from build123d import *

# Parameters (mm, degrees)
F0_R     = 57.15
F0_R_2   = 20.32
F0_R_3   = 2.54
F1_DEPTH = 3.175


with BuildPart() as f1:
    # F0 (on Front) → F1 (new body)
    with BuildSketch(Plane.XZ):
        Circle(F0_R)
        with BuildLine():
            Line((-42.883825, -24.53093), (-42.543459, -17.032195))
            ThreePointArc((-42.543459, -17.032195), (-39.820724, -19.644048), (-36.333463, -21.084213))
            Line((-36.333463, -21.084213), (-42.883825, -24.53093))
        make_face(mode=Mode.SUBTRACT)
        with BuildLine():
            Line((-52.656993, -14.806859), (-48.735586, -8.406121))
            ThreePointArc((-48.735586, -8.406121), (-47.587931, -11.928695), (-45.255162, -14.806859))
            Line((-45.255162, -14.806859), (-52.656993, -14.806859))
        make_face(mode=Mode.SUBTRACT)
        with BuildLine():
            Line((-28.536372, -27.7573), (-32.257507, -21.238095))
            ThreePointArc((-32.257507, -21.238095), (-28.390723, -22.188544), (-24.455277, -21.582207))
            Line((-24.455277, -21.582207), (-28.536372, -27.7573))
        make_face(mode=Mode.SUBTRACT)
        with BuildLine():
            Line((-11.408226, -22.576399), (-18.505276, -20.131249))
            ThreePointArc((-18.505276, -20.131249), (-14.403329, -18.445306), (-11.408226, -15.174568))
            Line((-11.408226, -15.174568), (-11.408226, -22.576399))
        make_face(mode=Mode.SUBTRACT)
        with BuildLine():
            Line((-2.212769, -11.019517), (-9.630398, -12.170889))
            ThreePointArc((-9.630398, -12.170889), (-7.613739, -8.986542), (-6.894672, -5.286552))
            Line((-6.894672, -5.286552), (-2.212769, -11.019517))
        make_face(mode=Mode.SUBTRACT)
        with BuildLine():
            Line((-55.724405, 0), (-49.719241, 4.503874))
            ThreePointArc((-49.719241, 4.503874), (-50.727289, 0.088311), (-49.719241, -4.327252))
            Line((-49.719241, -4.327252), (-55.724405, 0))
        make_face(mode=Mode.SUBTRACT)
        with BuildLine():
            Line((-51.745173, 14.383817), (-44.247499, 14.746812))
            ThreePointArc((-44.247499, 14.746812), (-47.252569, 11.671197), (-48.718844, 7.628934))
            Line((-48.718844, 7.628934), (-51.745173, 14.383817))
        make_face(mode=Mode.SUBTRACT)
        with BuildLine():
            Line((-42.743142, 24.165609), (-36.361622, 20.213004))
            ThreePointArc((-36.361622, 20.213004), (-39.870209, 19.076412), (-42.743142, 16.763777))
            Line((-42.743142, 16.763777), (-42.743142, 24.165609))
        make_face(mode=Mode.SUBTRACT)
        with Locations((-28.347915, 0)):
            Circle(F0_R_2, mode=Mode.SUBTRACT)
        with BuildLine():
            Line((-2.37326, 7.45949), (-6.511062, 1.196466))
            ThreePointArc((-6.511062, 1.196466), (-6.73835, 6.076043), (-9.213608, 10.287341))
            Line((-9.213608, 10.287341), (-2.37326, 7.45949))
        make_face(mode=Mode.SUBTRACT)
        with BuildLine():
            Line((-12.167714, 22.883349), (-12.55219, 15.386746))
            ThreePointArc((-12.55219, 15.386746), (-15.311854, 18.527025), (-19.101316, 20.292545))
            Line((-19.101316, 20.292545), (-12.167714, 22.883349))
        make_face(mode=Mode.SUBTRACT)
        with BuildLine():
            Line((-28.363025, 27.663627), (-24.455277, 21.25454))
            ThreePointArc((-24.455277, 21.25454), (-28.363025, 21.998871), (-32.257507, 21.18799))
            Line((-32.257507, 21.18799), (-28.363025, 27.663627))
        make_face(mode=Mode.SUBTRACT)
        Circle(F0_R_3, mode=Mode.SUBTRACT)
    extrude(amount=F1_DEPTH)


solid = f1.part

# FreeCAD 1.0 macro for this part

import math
import FreeCAD as App
import Part
import Sketcher
from FreeCAD import Vector
Q = App.Units.Quantity

doc = App.newDocument("Part")
body = doc.addObject("PartDesign::Body", "Body")

sketch1 = body.newObject("Sketcher::SketchObject", "Sketch")
sketch1.AttachmentSupport = (doc.getObject("XZ_Plane"), [""])
sketch1.MapMode = "FlatFace"
sketch1.addGeometry(Part.Circle(Vector(0, 0, 0), Vector(0, 0, 1), 57.15), False)
sketch1.addGeometry(Part.LineSegment(Vector(-24.455277, -21.582207, 0), Vector(-28.536372, -27.7573, 0)), False)
sketch1.addGeometry(Part.LineSegment(Vector(-28.536372, -27.7573, 0), Vector(-32.257507, -21.238095, 0)), False)
sketch1.addGeometry(Part.ArcOfCircle(Part.Circle(Vector(-27.942406, -12.023632, 0), Vector(0, 0, 1), 10.174794), math.radians(-115.093528), math.radians(-69.957181)), False)
sketch1.addGeometry(Part.LineSegment(Vector(-36.333463, -21.084213, 0), Vector(-42.883825, -24.53093, 0)), False)
sketch1.addGeometry(Part.LineSegment(Vector(-42.883825, -24.53093, 0), Vector(-42.543459, -17.032195, 0)), False)
sketch1.addGeometry(Part.ArcOfCircle(Part.Circle(Vector(-34.260627, -11.122817, 0), Vector(0, 0, 1), 10.174776), math.radians(-144.494081), math.radians(-101.754758)), False)
sketch1.addGeometry(Part.LineSegment(Vector(-45.255162, -14.806859, 0), Vector(-52.656993, -14.806859, 0)), False)
sketch1.addGeometry(Part.LineSegment(Vector(-52.656993, -14.806859, 0), Vector(-48.735586, -8.406121, 0)), False)
sketch1.addGeometry(Part.ArcOfCircle(Part.Circle(Vector(-38.649141, -7.068196, 0), Vector(0, 0, 1), 10.174793), math.radians(-172.444063), math.radians(-130.48535)), False)
sketch1.addGeometry(Part.LineSegment(Vector(-11.408226, -15.174568, 0), Vector(-11.408226, -22.576399, 0)), False)
sketch1.addGeometry(Part.LineSegment(Vector(-11.408226, -22.576399, 0), Vector(-18.505276, -20.131249, 0)), False)
sketch1.addGeometry(Part.ArcOfCircle(Part.Circle(Vector(-20.229308, -10.103583, 0), Vector(0, 0, 1), 10.174791), math.radians(-80.244652), math.radians(-29.893352)), False)
sketch1.addGeometry(Part.LineSegment(Vector(-6.894672, -5.286552, 0), Vector(-2.212769, -11.019517, 0)), False)
sketch1.addGeometry(Part.LineSegment(Vector(-2.212769, -11.019517, 0), Vector(-9.630398, -12.170889, 0)), False)
sketch1.addGeometry(Part.ArcOfCircle(Part.Circle(Vector(-17.069298, -5.229053, 0), Vector(0, 0, 1), 10.174789), math.radians(-43.020383), math.radians(-0.323788)), False)
sketch1.addGeometry(Part.LineSegment(Vector(-49.719241, -4.327252, 0), Vector(-55.724405, 0, 0)), False)
sketch1.addGeometry(Part.LineSegment(Vector(-55.724405, 0, 0), Vector(-49.719241, 4.503874, 0)), False)
sketch1.addGeometry(Part.ArcOfCircle(Part.Circle(Vector(-40.552497, 0.088311, 0), Vector(0, 0, 1), 10.174792), math.radians(154.280175), math.radians(205.719825)), False)
sketch1.addGeometry(Part.LineSegment(Vector(-48.718844, 7.628934, 0), Vector(-51.745173, 14.383817, 0)), False)
sketch1.addGeometry(Part.LineSegment(Vector(-51.745173, 14.383817, 0), Vector(-44.247499, 14.746812, 0)), False)
sketch1.addGeometry(Part.ArcOfCircle(Part.Circle(Vector(-38.636724, 6.258851, 0), Vector(0, 0, 1), 10.174786), math.radians(123.4658), math.radians(172.261347)), False)
sketch1.addGeometry(Part.Circle(Vector(-28.347915, 0, 0), Vector(0, 0, 1), 20.32), False)
sketch1.addGeometry(Part.LineSegment(Vector(-42.743142, 16.763777, 0), Vector(-42.743142, 24.165609, 0)), False)
sketch1.addGeometry(Part.LineSegment(Vector(-42.743142, 24.165609, 0), Vector(-36.361622, 20.213004, 0)), False)
sketch1.addGeometry(Part.ArcOfCircle(Part.Circle(Vector(-35.032191, 10.125448, 0), Vector(0, 0, 1), 10.174782), math.radians(97.507698), math.radians(139.27496)), False)
sketch1.addGeometry(Part.LineSegment(Vector(-32.257507, 21.18799, 0), Vector(-28.363025, 27.663627, 0)), False)
sketch1.addGeometry(Part.LineSegment(Vector(-28.363025, 27.663627, 0), Vector(-24.455277, 21.25454, 0)), False)
sketch1.addGeometry(Part.ArcOfCircle(Part.Circle(Vector(-28.276241, 11.824458, 0), Vector(0, 0, 1), 10.174783), math.radians(67.942759), math.radians(113.034639)), False)
sketch1.addGeometry(Part.LineSegment(Vector(-9.213608, 10.287341, 0), Vector(-2.37326, 7.45949, 0)), False)
sketch1.addGeometry(Part.LineSegment(Vector(-2.37326, 7.45949, 0), Vector(-6.511062, 1.196466, 0)), False)
sketch1.addGeometry(Part.ArcOfCircle(Part.Circle(Vector(-16.491303, 3.176674, 0), Vector(0, 0, 1), 10.174794), math.radians(-11.222466), math.radians(44.334911)), False)
sketch1.addGeometry(Part.Circle(Vector(0, 0, 0), Vector(0, 0, 1), 2.54), False)
sketch1.addGeometry(Part.LineSegment(Vector(-19.101316, 20.292545, 0), Vector(-12.167714, 22.883349, 0)), False)
sketch1.addGeometry(Part.LineSegment(Vector(-12.167714, 22.883349, 0), Vector(-12.55219, 15.386746, 0)), False)
sketch1.addGeometry(Part.ArcOfCircle(Part.Circle(Vector(-21.411913, 10.383589, 0), Vector(0, 0, 1), 10.174786), math.radians(29.453769), math.radians(76.874165)), False)
sketch1.addConstraint(Sketcher.Constraint("Coincident", 1, 2, 2, 1))
sketch1.addConstraint(Sketcher.Constraint("Coincident", 2, 2, 3, 1))
sketch1.addConstraint(Sketcher.Constraint("Coincident", 3, 2, 1, 1))
sketch1.addConstraint(Sketcher.Constraint("Coincident", 4, 2, 5, 1))
sketch1.addConstraint(Sketcher.Constraint("Coincident", 5, 2, 6, 1))
sketch1.addConstraint(Sketcher.Constraint("Coincident", 6, 2, 4, 1))
sketch1.addConstraint(Sketcher.Constraint("Coincident", 7, 2, 8, 1))
sketch1.addConstraint(Sketcher.Constraint("Coincident", 8, 2, 9, 1))
sketch1.addConstraint(Sketcher.Constraint("Coincident", 9, 2, 7, 1))
sketch1.addConstraint(Sketcher.Constraint("Coincident", 10, 2, 11, 1))
sketch1.addConstraint(Sketcher.Constraint("Coincident", 11, 2, 12, 1))
sketch1.addConstraint(Sketcher.Constraint("Coincident", 12, 2, 10, 1))
sketch1.addConstraint(Sketcher.Constraint("Coincident", 13, 2, 14, 1))
sketch1.addConstraint(Sketcher.Constraint("Coincident", 14, 2, 15, 1))
sketch1.addConstraint(Sketcher.Constraint("Coincident", 15, 2, 13, 1))
sketch1.addConstraint(Sketcher.Constraint("Coincident", 16, 2, 17, 1))
sketch1.addConstraint(Sketcher.Constraint("Coincident", 17, 2, 18, 1))
sketch1.addConstraint(Sketcher.Constraint("Coincident", 18, 2, 16, 1))
sketch1.addConstraint(Sketcher.Constraint("Coincident", 19, 2, 20, 1))
sketch1.addConstraint(Sketcher.Constraint("Coincident", 20, 2, 21, 1))
sketch1.addConstraint(Sketcher.Constraint("Coincident", 21, 2, 19, 1))
sketch1.addConstraint(Sketcher.Constraint("Coincident", 23, 2, 24, 1))
sketch1.addConstraint(Sketcher.Constraint("Coincident", 24, 2, 25, 1))
sketch1.addConstraint(Sketcher.Constraint("Coincident", 25, 2, 23, 1))
sketch1.addConstraint(Sketcher.Constraint("Coincident", 26, 2, 27, 1))
sketch1.addConstraint(Sketcher.Constraint("Coincident", 27, 2, 28, 1))
sketch1.addConstraint(Sketcher.Constraint("Coincident", 28, 2, 26, 1))
sketch1.addConstraint(Sketcher.Constraint("Coincident", 29, 2, 30, 1))
sketch1.addConstraint(Sketcher.Constraint("Coincident", 30, 2, 31, 1))
sketch1.addConstraint(Sketcher.Constraint("Coincident", 31, 2, 29, 1))
sketch1.addConstraint(Sketcher.Constraint("Coincident", 33, 2, 34, 1))
sketch1.addConstraint(Sketcher.Constraint("Coincident", 34, 2, 35, 1))
sketch1.addConstraint(Sketcher.Constraint("Coincident", 35, 2, 33, 1))
sketch1.addConstraint(Sketcher.Constraint("Horizontal", 7))
sketch1.addConstraint(Sketcher.Constraint("Vertical", 10))
sketch1.addConstraint(Sketcher.Constraint("Vertical", 23))
sketch1.addConstraint(Sketcher.Constraint("Coincident", 0, 3, -1, 1))
sketch1.addConstraint(Sketcher.Constraint("Coincident", 32, 3, -1, 1))
sketch1.addConstraint(Sketcher.Constraint("PointOnObject", 22, 3, -1))
sketch1.addConstraint(Sketcher.Constraint("PointOnObject", 16, 2, -1))
sketch1.addConstraint(Sketcher.Constraint("Diameter", 0, Q("4.5 in")))
sketch1.addConstraint(Sketcher.Constraint("Diameter", 22, Q("1.6 in")))
sketch1.addConstraint(Sketcher.Constraint("Diameter", 32, Q("0.2 in")))
sketch1.addConstraint(Sketcher.Constraint("Radius", 12, 10.174791))
sketch1.addConstraint(Sketcher.Constraint("Radius", 15, 10.174789))
sketch1.addConstraint(Sketcher.Constraint("Radius", 18, 10.174792))
sketch1.addConstraint(Sketcher.Constraint("Radius", 25, 10.174782))
sketch1.addConstraint(Sketcher.Constraint("DistanceY", 35, 2, 33, 2, Q("0.1020002 in")))
sketch1.addConstraint(Sketcher.Constraint("Radius", 3, 10.174794))
sketch1.addConstraint(Sketcher.Constraint("Radius", 6, 10.174776))
sketch1.addConstraint(Sketcher.Constraint("Radius", 9, 10.174793))
sketch1.addConstraint(Sketcher.Constraint("Radius", 21, 10.174786))
sketch1.addConstraint(Sketcher.Constraint("Radius", 28, 10.174783))
sketch1.addConstraint(Sketcher.Constraint("Radius", 31, 10.174794))
sketch1.addConstraint(Sketcher.Constraint("Radius", 35, 10.174786))
sketch1.addConstraint(Sketcher.Constraint("DistanceX", 9, 3, 15, 3, Q("0.8496001 in")))
sketch1.addConstraint(Sketcher.Constraint("DistanceY", 33, 2, 26, 2, Q("0.1881999 in")))
sketch1.addConstraint(Sketcher.Constraint("DistanceX", 7, 2, 7, 1, 7.401831))
sketch1.addConstraint(Sketcher.Constraint("DistanceY", 10, 2, 10, 1, 7.401831))
sketch1.addConstraint(Sketcher.Constraint("DistanceY", 23, 1, 23, 2, 7.401832))
sketch1.addConstraint(Sketcher.Constraint("DistanceX", 15, 3, -1, 1, 17.069298))
sketch1.addConstraint(Sketcher.Constraint("DistanceY", 1, 2, -1, 1, 27.7573))
sketch1.addConstraint(Sketcher.Constraint("DistanceY", 10, 2, -1, 1, 22.576399))
sketch1.addConstraint(Sketcher.Constraint("DistanceX", 20, 2, -1, 1, 44.247499))
sketch1.addConstraint(Sketcher.Constraint("DistanceX", 3, 3, 12, 3, 7.713098))
sketch1.addConstraint(Sketcher.Constraint("DistanceX", 18, 3, 15, 3, 23.483199))
sketch1.addConstraint(Sketcher.Constraint("DistanceX", 2, 2, 3, 3, 4.315101))
sketch1.addConstraint(Sketcher.Constraint("DistanceY", 2, 2, 9, 3, 14.169899))
sketch1.addConstraint(Sketcher.Constraint("DistanceX", 4, 2, 6, 3, 8.623198))
sketch1.addConstraint(Sketcher.Constraint("DistanceY", 5, 2, 9, 3, 9.963999))
sketch1.addConstraint(Sketcher.Constraint("DistanceX", 3, 2, 11, 2, 5.950001))
sketch1.addConstraint(Sketcher.Constraint("DistanceX", 15, 3, 14, 2, 7.4389))
sketch1.addConstraint(Sketcher.Constraint("DistanceY", 15, 2, 15, 3, 0.057499))
sketch1.addConstraint(Sketcher.Constraint("DistanceY", 18, 3, 20, 2, 14.658501))
sketch1.addConstraint(Sketcher.Constraint("DistanceX", 21, 2, 23, 2, 5.975702))
sketch1.addConstraint(Sketcher.Constraint("DistanceX", 21, 3, 24, 2, 2.275102))
sketch1.addConstraint(Sketcher.Constraint("DistanceX", 30, 2, 29, 2, 4.137802))
sketch1.addConstraint(Sketcher.Constraint("DistanceX", 35, 3, 33, 2, 9.244199))
sketch1.addConstraint(Sketcher.Constraint("DistanceX", 35, 2, 33, 2, 6.933602))
sketch1.addConstraint(Sketcher.Constraint("DistanceY", 34, 2, 35, 2, 4.905799))
sketch1.addConstraint(Sketcher.Constraint("Distance", 1, 7.401832))
sketch1.addConstraint(Sketcher.Constraint("Distance", 4, 7.401831))
sketch1.addConstraint(Sketcher.Constraint("Distance", 13, 7.401831))
sketch1.addConstraint(Sketcher.Constraint("Distance", 16, 7.401831))
sketch1.addConstraint(Sketcher.Constraint("Distance", 19, 7.401832))
sketch1.addConstraint(Sketcher.Constraint("Distance", 26, 7.556511))
sketch1.addConstraint(Sketcher.Constraint("Distance", 29, 7.401831))
sketch1.addConstraint(Sketcher.Constraint("DistanceY", 3, 3, -1, 1, 12.023632))
sketch1.addConstraint(Sketcher.Constraint("DistanceY", -1, 1, 18, 3, 0.088311))
sketch1.addConstraint(Sketcher.Constraint("DistanceY", -1, 1, 21, 3, 6.258851))
sketch1.addConstraint(Sketcher.Constraint("DistanceX", 25, 3, -1, 1, 35.032191))
sketch1.addConstraint(Sketcher.Constraint("DistanceX", 28, 3, -1, 1, 28.276241))
sketch1.addConstraint(Sketcher.Constraint("DistanceY", -1, 1, 35, 3, 10.383589))
sketch1.addConstraint(Sketcher.Constraint("DistanceX", 1, 2, -1, 1, 28.536372))
sketch1.addConstraint(Sketcher.Constraint("DistanceY", 4, 2, -1, 1, 24.53093))
sketch1.addConstraint(Sketcher.Constraint("DistanceX", 5, 2, -1, 1, 42.543459))
sketch1.addConstraint(Sketcher.Constraint("DistanceY", 7, 2, -1, 1, 14.806859))
sketch1.addConstraint(Sketcher.Constraint("DistanceY", 8, 2, -1, 1, 8.406121))
sketch1.addConstraint(Sketcher.Constraint("DistanceY", 11, 2, -1, 1, 20.131249))
sketch1.addConstraint(Sketcher.Constraint("DistanceX", 13, 2, -1, 1, 2.212769))
sketch1.addConstraint(Sketcher.Constraint("DistanceY", 14, 2, -1, 1, 12.170889))
sketch1.addConstraint(Sketcher.Constraint("DistanceX", 17, 2, -1, 1, 49.719241))
sketch1.addConstraint(Sketcher.Constraint("DistanceX", 18, 2, -1, 1, 49.719241))
sketch1.addConstraint(Sketcher.Constraint("DistanceY", -1, 1, 23, 2, 24.165609))
sketch1.addConstraint(Sketcher.Constraint("DistanceX", 25, 2, -1, 1, 42.743142))
sketch1.addConstraint(Sketcher.Constraint("DistanceY", -1, 1, 27, 2, 21.25454))
sketch1.addConstraint(Sketcher.Constraint("DistanceY", -1, 1, 28, 2, 21.18799))
sketch1.addConstraint(Sketcher.Constraint("DistanceX", 29, 2, -1, 1, 2.37326))
sketch1.addConstraint(Sketcher.Constraint("DistanceY", -1, 1, 29, 2, 7.45949))
sketch1.addConstraint(Sketcher.Constraint("DistanceY", -1, 1, 31, 2, 10.287341))
sketch1.addConstraint(Sketcher.Constraint("DistanceX", 34, 2, -1, 1, 12.55219))
sketch1.addConstraint(Sketcher.Constraint("DistanceX", 6, 3, 3, 3, 6.318221))
sketch1.addConstraint(Sketcher.Constraint("DistanceY", 6, 3, 9, 3, 4.054621))
sketch1.addConstraint(Sketcher.Constraint("DistanceX", 22, 3, 3, 3, 0.405509))
sketch1.addConstraint(Sketcher.Constraint("DistanceY", 25, 3, 28, 3, 1.69901))
sketch1.addConstraint(Sketcher.Constraint("DistanceX", 28, 3, 31, 3, 11.784938))
sketch1.addConstraint(Sketcher.Constraint("DistanceX", 16, 2, 19, 2, 3.979232))
pad1 = body.newObject("PartDesign::Pad", "Pad")
pad1.Profile = sketch1
pad1.Length = Q("0.125 in")

doc.recompute()
